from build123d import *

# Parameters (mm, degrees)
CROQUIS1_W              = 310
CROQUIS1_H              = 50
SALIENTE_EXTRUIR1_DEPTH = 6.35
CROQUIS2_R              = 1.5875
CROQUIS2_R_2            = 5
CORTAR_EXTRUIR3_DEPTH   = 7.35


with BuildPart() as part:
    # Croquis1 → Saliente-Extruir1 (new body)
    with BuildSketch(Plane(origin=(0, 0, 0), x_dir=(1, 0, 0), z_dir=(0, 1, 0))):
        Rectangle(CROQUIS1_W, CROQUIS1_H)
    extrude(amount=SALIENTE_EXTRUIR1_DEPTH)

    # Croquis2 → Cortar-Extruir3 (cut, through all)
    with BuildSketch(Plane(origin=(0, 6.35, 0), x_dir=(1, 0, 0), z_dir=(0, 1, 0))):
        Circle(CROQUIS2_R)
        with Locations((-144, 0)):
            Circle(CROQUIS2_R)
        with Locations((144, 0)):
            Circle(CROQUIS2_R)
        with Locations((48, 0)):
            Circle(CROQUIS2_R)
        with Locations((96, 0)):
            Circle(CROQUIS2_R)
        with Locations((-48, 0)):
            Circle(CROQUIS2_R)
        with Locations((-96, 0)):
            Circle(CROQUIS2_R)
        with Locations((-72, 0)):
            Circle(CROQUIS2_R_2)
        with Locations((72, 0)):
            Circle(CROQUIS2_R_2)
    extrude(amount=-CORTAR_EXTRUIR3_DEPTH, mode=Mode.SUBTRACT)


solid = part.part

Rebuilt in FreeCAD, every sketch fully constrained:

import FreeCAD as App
import Part
import Sketcher
from FreeCAD import Vector
Q = App.Units.Quantity

doc = App.newDocument("Part")
params = doc.addObject("Spreadsheet::Sheet", "Params")
for row, (alias, value) in enumerate([
    ("sketch1_width", "310 mm"),
    ("sketch1_height", "50 mm"),
    ("pad1_length", "6.35 mm"),
    ("sketch2_diameter", "10 mm"),
], start=1):
    params.set(f"A{row}", alias)
    params.set(f"B{row}", "=" + value)
    params.setAlias(f"B{row}", alias)

body = doc.addObject("PartDesign::Body", "Body")

sketch1 = body.newObject("Sketcher::SketchObject", "Sketch")
sketch1.AttachmentSupport = (doc.getObject("XZ_Plane"), [""])
sketch1.MapMode = "FlatFace"
sketch1.addGeometry([
    Part.LineSegment(Vector(-155, -25, 0), Vector(-155, 25, 0)),
    Part.LineSegment(Vector(-155, 25, 0), Vector(155, 25, 0)),
    Part.LineSegment(Vector(155, 25, 0), Vector(155, -25, 0)),
    Part.LineSegment(Vector(155, -25, 0), Vector(-155, -25, 0)),
], False)
sketch1.addConstraint([
    Sketcher.Constraint("Coincident", 0, 2, 1, 1),
    Sketcher.Constraint("Coincident", 1, 2, 2, 1),
    Sketcher.Constraint("Coincident", 2, 2, 3, 1),
    Sketcher.Constraint("Coincident", 3, 2, 0, 1),
    Sketcher.Constraint("Vertical", 0),
    Sketcher.Constraint("Horizontal", 1),
    Sketcher.Constraint("Vertical", 2),
    Sketcher.Constraint("Horizontal", 3),
    Sketcher.Constraint("Symmetric", 0, 2, 2, 2, -1, 1),
    Sketcher.Constraint("DistanceX", 1, 1, 1, 2, Q("310 mm")),
    Sketcher.Constraint("DistanceY", 0, 1, 0, 2, Q("50 mm")),
])
sketch1.setExpression("Constraints[9]", "Params.sketch1_width")
sketch1.setExpression("Constraints[10]", "Params.sketch1_height")
pad1 = body.newObject("PartDesign::Pad", "Pad")
pad1.Profile = sketch1
pad1.setExpression("Length", "Params.pad1_length")
pad1.Reversed = True

sketch2 = body.newObject("Sketcher::SketchObject", "Sketch001")
sketch2.AttachmentSupport = (doc.getObject("XZ_Plane"), [""])
sketch2.MapMode = "FlatFace"
sketch2.AttachmentOffset = App.Placement(Vector(0, 0, -6.35), App.Rotation())
sketch2.addGeometry([
    Part.Circle(Vector(0, 0, 0), Vector(0, 0, 1), 1.5875),
    Part.Circle(Vector(-144, 0, 0), Vector(0, 0, 1), 1.5875),
    Part.Circle(Vector(144, 0, 0), Vector(0, 0, 1), 1.5875),
    Part.Circle(Vector(48, 0, 0), Vector(0, 0, 1), 1.5875),
    Part.Circle(Vector(96, 0, 0), Vector(0, 0, 1), 1.5875),
    Part.Circle(Vector(-48, 0, 0), Vector(0, 0, 1), 1.5875),
    Part.Circle(Vector(-96, 0, 0), Vector(0, 0, 1), 1.5875),
    Part.Circle(Vector(-72, 0, 0), Vector(0, 0, 1), 5),
    Part.Circle(Vector(72, 0, 0), Vector(0, 0, 1), 5),
], False)
sketch2.addConstraint([
    Sketcher.Constraint("Coincident", 0, 3, -1, 1),
    Sketcher.Constraint("Equal", 0, 1),
    Sketcher.Constraint("Equal", 1, 2),
    Sketcher.Constraint("Equal", 2, 3),
    Sketcher.Constraint("Equal", 3, 4),
    Sketcher.Constraint("Equal", 4, 5),
    Sketcher.Constraint("Equal", 5, 6),
    Sketcher.Constraint("Equal", 7, 8),
    Sketcher.Constraint("Symmetric", 1, 3, 2, 3, -1, 1),
    Sketcher.Constraint("Symmetric", 3, 3, 5, 3, -1, 1),
    Sketcher.Constraint("Symmetric", 4, 3, 6, 3, -1, 1),
    Sketcher.Constraint("Symmetric", 7, 3, 8, 3, -1, 1),
    Sketcher.Constraint("PointOnObject", 1, 3, -1),
    Sketcher.Constraint("PointOnObject", 3, 3, -1),
    Sketcher.Constraint("PointOnObject", 4, 3, -1),
    Sketcher.Constraint("PointOnObject", 7, 3, -1),
    Sketcher.Constraint("Diameter", 7, Q("10 mm")),
    Sketcher.Constraint("Diameter", 0, Q("3.175 mm")),
    Sketcher.Constraint("DistanceX", 1, 3, -1, 1, Q("144 mm")),
    Sketcher.Constraint("DistanceX", -1, 1, 3, 3, Q("48 mm")),
    Sketcher.Constraint("DistanceX", -1, 1, 4, 3, Q("96 mm")),
    Sketcher.Constraint("DistanceX", 7, 3, -1, 1, Q("72 mm")),
])
sketch2.setExpression("Constraints[16]", "Params.sketch2_diameter")
pocket1 = body.newObject("PartDesign::Pocket", "Pocket")
pocket1.Profile = sketch2
pocket1.Type = "ThroughAll"
pocket1.Reversed = True

doc.recompute()
